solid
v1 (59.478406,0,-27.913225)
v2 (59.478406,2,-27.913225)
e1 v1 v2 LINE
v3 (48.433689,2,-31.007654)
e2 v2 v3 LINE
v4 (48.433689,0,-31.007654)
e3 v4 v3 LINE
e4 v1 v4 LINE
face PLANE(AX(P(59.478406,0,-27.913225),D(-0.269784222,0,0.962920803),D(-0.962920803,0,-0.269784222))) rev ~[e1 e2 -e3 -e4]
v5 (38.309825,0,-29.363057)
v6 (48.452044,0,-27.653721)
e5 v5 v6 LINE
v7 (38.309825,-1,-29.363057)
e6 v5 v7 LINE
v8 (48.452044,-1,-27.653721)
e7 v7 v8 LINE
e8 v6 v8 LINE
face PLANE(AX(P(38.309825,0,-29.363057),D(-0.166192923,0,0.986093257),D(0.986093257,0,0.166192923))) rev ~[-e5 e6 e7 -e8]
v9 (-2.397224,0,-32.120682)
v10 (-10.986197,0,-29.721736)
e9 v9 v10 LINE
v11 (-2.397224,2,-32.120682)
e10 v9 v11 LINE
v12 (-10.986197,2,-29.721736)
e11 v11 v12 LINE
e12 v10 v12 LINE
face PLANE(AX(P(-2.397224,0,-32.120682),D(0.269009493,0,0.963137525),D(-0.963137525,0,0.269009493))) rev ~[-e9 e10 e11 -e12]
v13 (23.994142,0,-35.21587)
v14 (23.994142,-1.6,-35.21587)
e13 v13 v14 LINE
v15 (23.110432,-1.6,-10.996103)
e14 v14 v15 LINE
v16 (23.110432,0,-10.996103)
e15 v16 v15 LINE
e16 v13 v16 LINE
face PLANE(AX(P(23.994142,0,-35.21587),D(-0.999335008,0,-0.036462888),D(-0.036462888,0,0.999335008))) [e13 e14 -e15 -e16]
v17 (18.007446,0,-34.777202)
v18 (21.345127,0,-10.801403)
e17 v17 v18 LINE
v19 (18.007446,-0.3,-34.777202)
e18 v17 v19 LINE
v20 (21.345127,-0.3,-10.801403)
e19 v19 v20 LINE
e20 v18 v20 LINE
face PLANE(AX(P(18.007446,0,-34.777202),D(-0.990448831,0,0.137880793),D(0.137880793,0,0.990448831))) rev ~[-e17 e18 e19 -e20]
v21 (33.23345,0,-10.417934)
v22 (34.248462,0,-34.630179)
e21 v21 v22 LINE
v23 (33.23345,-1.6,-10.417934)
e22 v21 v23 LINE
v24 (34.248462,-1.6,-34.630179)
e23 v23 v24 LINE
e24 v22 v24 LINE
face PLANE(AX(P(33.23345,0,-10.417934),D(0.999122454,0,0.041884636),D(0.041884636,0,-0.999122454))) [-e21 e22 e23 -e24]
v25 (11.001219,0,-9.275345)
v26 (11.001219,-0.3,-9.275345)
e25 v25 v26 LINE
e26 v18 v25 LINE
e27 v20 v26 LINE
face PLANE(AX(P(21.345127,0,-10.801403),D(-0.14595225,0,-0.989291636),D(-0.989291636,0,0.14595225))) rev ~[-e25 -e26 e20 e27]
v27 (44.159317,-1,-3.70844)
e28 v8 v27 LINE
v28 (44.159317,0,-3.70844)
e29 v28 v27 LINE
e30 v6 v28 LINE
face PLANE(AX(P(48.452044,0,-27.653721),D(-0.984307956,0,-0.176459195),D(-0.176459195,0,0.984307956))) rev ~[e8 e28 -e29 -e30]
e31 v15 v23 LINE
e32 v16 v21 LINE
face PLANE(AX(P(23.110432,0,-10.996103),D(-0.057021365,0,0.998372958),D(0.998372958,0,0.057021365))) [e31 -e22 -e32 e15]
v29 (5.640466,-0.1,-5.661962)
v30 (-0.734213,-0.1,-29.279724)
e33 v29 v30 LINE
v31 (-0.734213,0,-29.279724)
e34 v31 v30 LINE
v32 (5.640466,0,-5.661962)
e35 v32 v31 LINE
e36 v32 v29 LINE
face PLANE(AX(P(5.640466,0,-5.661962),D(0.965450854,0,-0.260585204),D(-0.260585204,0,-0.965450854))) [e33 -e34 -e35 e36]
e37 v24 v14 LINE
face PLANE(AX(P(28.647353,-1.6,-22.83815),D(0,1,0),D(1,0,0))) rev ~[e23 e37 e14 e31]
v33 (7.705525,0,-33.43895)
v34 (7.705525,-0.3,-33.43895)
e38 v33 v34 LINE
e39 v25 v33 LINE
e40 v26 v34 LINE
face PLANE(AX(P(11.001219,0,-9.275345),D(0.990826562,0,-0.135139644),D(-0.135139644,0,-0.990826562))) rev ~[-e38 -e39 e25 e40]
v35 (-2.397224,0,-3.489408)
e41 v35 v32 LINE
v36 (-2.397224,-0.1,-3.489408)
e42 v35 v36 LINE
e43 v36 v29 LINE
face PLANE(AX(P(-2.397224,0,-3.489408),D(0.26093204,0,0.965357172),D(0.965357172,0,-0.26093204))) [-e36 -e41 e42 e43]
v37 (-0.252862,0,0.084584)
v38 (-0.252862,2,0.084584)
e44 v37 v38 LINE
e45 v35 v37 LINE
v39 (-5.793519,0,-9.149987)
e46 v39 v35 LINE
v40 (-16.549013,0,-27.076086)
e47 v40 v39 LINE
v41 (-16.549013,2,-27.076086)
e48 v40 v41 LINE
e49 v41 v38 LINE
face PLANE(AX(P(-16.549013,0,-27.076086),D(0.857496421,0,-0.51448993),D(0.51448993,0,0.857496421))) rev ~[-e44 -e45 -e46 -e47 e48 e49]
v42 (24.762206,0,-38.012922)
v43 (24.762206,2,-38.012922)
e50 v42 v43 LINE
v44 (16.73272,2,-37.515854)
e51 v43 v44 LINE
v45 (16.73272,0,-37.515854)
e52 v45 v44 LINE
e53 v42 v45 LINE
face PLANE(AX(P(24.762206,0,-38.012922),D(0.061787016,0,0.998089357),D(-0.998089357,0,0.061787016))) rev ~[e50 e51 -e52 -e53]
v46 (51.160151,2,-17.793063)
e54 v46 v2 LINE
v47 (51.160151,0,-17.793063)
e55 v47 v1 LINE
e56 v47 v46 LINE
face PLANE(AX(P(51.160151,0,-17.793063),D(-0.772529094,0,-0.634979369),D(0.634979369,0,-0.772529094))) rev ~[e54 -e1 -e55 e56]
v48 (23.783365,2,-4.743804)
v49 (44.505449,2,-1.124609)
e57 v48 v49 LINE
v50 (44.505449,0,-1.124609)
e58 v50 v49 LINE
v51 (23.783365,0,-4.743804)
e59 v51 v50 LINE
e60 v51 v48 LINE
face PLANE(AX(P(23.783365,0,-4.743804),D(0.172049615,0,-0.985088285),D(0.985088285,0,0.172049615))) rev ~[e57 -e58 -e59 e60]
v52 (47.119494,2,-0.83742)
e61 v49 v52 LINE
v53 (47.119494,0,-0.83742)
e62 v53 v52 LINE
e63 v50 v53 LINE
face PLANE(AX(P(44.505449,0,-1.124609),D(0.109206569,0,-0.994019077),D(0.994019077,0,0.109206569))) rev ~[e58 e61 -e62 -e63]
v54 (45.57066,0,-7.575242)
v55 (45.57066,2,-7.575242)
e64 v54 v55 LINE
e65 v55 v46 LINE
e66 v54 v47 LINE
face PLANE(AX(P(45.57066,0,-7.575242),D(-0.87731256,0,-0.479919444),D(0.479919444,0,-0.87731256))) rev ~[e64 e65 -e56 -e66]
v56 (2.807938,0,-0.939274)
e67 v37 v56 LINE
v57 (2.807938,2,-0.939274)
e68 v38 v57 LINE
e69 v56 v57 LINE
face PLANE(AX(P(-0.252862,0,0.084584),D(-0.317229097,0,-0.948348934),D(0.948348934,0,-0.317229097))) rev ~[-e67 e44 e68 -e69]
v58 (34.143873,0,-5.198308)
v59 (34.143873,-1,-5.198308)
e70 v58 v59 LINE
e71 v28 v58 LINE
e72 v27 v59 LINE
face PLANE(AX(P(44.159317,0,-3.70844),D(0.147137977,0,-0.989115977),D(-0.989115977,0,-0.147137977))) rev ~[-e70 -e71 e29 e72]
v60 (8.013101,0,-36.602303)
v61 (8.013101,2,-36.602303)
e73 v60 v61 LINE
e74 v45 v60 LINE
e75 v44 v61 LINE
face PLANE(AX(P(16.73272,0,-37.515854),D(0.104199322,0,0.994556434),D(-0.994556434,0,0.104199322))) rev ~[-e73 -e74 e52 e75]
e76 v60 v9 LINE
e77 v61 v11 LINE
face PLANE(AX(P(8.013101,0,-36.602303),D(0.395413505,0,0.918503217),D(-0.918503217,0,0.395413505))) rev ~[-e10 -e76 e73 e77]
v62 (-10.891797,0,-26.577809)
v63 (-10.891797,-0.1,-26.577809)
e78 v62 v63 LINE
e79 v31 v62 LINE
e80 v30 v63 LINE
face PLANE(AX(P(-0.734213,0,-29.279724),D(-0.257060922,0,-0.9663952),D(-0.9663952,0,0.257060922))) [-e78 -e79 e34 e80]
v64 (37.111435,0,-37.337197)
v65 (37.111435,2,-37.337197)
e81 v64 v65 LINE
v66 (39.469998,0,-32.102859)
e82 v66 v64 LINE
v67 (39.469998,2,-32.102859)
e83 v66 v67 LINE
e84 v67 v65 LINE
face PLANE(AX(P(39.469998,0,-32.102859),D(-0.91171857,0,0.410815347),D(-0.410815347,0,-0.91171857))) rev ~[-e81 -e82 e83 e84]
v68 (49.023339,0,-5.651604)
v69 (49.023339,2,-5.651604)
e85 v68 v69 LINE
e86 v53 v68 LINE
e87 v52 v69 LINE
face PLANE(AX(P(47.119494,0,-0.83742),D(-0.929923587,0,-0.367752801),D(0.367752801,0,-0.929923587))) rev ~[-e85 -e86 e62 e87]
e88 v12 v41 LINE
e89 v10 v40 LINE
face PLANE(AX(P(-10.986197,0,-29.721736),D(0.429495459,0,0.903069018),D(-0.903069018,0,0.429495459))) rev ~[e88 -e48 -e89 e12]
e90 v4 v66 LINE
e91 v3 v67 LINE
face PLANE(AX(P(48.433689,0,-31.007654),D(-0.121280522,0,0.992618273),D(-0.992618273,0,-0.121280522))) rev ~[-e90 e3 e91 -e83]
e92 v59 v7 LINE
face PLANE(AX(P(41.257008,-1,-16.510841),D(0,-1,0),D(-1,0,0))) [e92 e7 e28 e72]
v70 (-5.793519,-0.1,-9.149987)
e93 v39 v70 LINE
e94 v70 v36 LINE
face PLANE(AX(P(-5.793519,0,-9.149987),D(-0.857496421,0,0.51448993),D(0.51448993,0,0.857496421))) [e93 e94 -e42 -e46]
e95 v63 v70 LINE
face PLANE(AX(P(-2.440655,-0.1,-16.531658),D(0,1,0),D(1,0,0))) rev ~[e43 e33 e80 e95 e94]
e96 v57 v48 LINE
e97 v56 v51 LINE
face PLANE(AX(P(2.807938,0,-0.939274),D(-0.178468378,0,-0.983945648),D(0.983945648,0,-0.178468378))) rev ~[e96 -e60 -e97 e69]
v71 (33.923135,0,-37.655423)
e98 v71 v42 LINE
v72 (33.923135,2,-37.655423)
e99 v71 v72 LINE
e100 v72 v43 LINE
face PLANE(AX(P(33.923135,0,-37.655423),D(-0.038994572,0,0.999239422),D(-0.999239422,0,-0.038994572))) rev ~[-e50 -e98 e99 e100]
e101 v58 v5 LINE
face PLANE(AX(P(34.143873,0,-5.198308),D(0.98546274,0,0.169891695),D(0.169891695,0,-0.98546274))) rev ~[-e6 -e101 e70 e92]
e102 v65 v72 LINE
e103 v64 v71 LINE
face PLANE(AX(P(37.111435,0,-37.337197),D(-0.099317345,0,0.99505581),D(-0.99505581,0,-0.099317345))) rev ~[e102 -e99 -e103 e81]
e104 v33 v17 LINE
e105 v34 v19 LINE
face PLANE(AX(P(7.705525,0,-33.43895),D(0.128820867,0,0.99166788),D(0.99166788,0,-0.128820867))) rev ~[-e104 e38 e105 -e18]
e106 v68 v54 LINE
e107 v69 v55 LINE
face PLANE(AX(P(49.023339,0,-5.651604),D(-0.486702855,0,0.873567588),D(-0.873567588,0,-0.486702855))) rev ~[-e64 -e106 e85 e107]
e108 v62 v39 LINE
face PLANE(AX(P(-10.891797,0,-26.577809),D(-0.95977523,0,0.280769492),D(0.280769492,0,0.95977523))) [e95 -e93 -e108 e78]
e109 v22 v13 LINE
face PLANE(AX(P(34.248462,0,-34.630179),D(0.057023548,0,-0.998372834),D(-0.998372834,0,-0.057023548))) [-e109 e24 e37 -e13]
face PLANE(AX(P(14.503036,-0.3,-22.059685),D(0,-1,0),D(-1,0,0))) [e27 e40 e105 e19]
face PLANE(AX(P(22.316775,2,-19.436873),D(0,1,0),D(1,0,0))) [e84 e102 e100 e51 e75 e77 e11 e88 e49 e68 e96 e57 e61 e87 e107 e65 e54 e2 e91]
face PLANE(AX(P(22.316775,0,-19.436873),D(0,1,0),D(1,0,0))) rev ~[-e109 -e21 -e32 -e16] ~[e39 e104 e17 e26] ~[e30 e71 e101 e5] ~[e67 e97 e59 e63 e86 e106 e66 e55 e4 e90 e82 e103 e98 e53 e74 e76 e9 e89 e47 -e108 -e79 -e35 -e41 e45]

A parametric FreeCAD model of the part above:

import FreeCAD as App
import Part
import Sketcher


def add_polygon(sketch, points):
    """Adds a closed chain of lines whose ends are joined by coincident constraints."""
    first, n = sketch.GeometryCount, len(points)
    for a, b in zip(points, points[1:] + points[:1]):
        sketch.addGeometry(Part.LineSegment(App.Vector(*a, 0), App.Vector(*b, 0)), False)
    for i in range(n):
        sketch.addConstraint(Sketcher.Constraint("Coincident", first + i, 2, first + (i + 1) % n, 1))

doc = App.newDocument("Part")
body = doc.addObject("PartDesign::Body", "Body")

# Sketch on XZ plane
sketch1 = doc.addObject("Sketcher::SketchObject", "Sketch")
body.addObject(sketch1)
sketch1.AttachmentSupport = (doc.XZ_Plane, [""])
sketch1.MapMode = "FlatFace"
add_polygon(sketch1, [(-11, -27), (-6, -9), (-2, -3), (6, -6), (-1, -29)])  # lines 0-4
sketch1.addConstraint(Sketcher.Constraint("DistanceY", 4, 2, 1, 2, 23.088401))
sketch1.addConstraint(Sketcher.Constraint("Distance", 2, 8.326131))
sketch1.addConstraint(Sketcher.Constraint("DistanceX", 0, 2, -1, 1, 5.793519))
sketch1.addConstraint(Sketcher.Constraint("DistanceY", 4, 2, -1, 1, 26.577809))
sketch1.addConstraint(Sketcher.Constraint("DistanceY", 0, 2, 1, 2, 5.660579))
sketch1.addConstraint(Sketcher.Constraint("DistanceX", 1, 2, 2, 2, 8.037691))
sketch1.addConstraint(Sketcher.Constraint("DistanceX", 3, 2, 2, 2, 6.374679))
sketch1.addConstraint(Sketcher.Constraint("DistanceY", 3, 2, 2, 2, 23.617762))
sketch1.addConstraint(Sketcher.Constraint("Distance", 0, 18.158233))
sketch1.addConstraint(Sketcher.Constraint("Distance", 1, 6.601286))
pad1 = doc.addObject("PartDesign::Pad", "Pad")
body.addObject(pad1)
pad1.Profile = sketch1
pad1.Length = 0.1
body2 = doc.addObject("PartDesign::Body", "Body001")

# Sketch on XZ plane
sketch2 = doc.addObject("Sketcher::SketchObject", "Sketch001")
body2.addObject(sketch2)
sketch2.AttachmentSupport = (doc.getObject("XZ_Plane001"), [""])
sketch2.MapMode = "FlatFace"
add_polygon(sketch2, [(8, -33), (11, -9), (21, -11), (18, -35)])  # lines 0-3
sketch2.addConstraint(Sketcher.Constraint("DistanceY", 2, 2, 1, 2, 23.9758))
sketch2.addConstraint(Sketcher.Constraint("Distance", 0, 24.387321))
sketch2.addConstraint(Sketcher.Constraint("Distance", 3, 10.388479))
sketch2.addConstraint(Sketcher.Constraint("DistanceX", -1, 1, 0, 2, 11.001219))
sketch2.addConstraint(Sketcher.Constraint("DistanceY", 3, 2, -1, 1, 33.43895))
sketch2.addConstraint(Sketcher.Constraint("DistanceX", 0, 2, 1, 2, 10.343908))
sketch2.addConstraint(Sketcher.Constraint("DistanceY", 1, 2, 0, 2, 1.526058))
sketch2.addConstraint(Sketcher.Constraint("DistanceX", 2, 2, 1, 2, 3.337681))
pad2 = doc.addObject("PartDesign::Pad", "Pad001")
body2.addObject(pad2)
pad2.Profile = sketch2
pad2.Length = 0.3
body3 = doc.addObject("PartDesign::Body", "Body002")

# Sketch on XZ plane
sketch3 = doc.addObject("Sketcher::SketchObject", "Sketch002")
body3.addObject(sketch3)
sketch3.AttachmentSupport = (doc.getObject("XZ_Plane002"), [""])
sketch3.MapMode = "FlatFace"
add_polygon(sketch3, [(33, -10), (34, -35), (24, -35), (23, -11)])  # lines 0-3
sketch3.addConstraint(Sketcher.Constraint("Distance", 0, 24.233511))
sketch3.addConstraint(Sketcher.Constraint("DistanceY", 0, 2, -1, 1, 34.630179))
sketch3.addConstraint(Sketcher.Constraint("DistanceY", 1, 2, -1, 1, 35.21587))
sketch3.addConstraint(Sketcher.Constraint("DistanceX", -1, 1, 3, 2, 33.23345))
sketch3.addConstraint(Sketcher.Constraint("DistanceX", 1, 2, 0, 2, 10.25432))
sketch3.addConstraint(Sketcher.Constraint("DistanceX", 2, 2, 1, 2, 0.88371))
sketch3.addConstraint(Sketcher.Constraint("DistanceX", 2, 2, 3, 2, 10.123018))
sketch3.addConstraint(Sketcher.Constraint("DistanceY", 2, 2, 3, 2, 0.578169))
pad3 = doc.addObject("PartDesign::Pad", "Pad002")
body3.addObject(pad3)
pad3.Profile = sketch3
pad3.Length = 1.6
body4 = doc.addObject("PartDesign::Body", "Body003")

# Sketch on XZ plane
sketch4 = doc.addObject("Sketcher::SketchObject", "Sketch003")
body4.addObject(sketch4)
sketch4.AttachmentSupport = (doc.getObject("XZ_Plane003"), [""])
sketch4.MapMode = "FlatFace"
add_polygon(sketch4, [(38, -29), (34, -5), (44, -4), (48, -28)])  # lines 0-3
sketch4.addConstraint(Sketcher.Constraint("Distance", 0, 24.521221))
sketch4.addConstraint(Sketcher.Constraint("Distance", 1, 10.125651))
sketch4.addConstraint(Sketcher.Constraint("Distance", 2, 24.327021))
sketch4.addConstraint(Sketcher.Constraint("DistanceY", 0, 2, -1, 1, 5.198308))
sketch4.addConstraint(Sketcher.Constraint("DistanceY", 1, 2, -1, 1, 3.70844))
sketch4.addConstraint(Sketcher.Constraint("DistanceY", 2, 2, -1, 1, 27.653721))
sketch4.addConstraint(Sketcher.Constraint("DistanceX", 3, 2, 2, 2, 10.142219))
sketch4.addConstraint(Sketcher.Constraint("DistanceX", -1, 1, 0, 2, 34.143873))
pad4 = doc.addObject("PartDesign::Pad", "Pad003")
body4.addObject(pad4)
pad4.Profile = sketch4
pad4.Length = 1
body.AllowCompound = True
doc.recompute()

boolean = doc.addObject("PartDesign::Boolean", "Boolean")
body.addObject(boolean)
boolean.Type = "Fuse"
boolean.addObjects([body2])
doc.recompute()

boolean2 = doc.addObject("PartDesign::Boolean", "Boolean001")
body.addObject(boolean2)
boolean2.Type = "Fuse"
boolean2.addObjects([body3])
doc.recompute()

boolean3 = doc.addObject("PartDesign::Boolean", "Boolean002")
body.addObject(boolean3)
boolean3.Type = "Fuse"
boolean3.addObjects([body4])

# Sketch on XZ plane
sketch5 = doc.addObject("Sketcher::SketchObject", "Sketch004")
body.addObject(sketch5)
sketch5.AttachmentSupport = (doc.XZ_Plane, [""])
sketch5.MapMode = "FlatFace"
add_polygon(sketch5, [(-11, -29.7), (-16.5, -27.1), (-0.3, 0.1), (2.8, -0.9), (23.8, -4.7), (44.5, -1.1), (47.1, -0.8), (49, -5.7), (45.6, -7.6), (51.2, -17.8), (59.5, -27.9), (48.4, -31), (39.5, -32.1), (37.1, -37.3), (33.9, -37.7), (24.8, -38), (16.7, -37.5), (8, -36.6), (-2.4, -32.1)])  # lines 0-18
sketch5.addConstraint(Sketcher.Constraint("DistanceX", -1, 1, 11, 2, 39.469998))
sketch5.addConstraint(Sketcher.Constraint("Distance", 0, 6.159901))
sketch5.addConstraint(Sketcher.Constraint("Distance", 14, 9.167902))
sketch5.addConstraint(Sketcher.Constraint("Distance", 18, 8.917701))
sketch5.addConstraint(Sketcher.Constraint("DistanceX", -1, 1, 16, 2, 8.013101))
sketch5.addConstraint(Sketcher.Constraint("DistanceX", 1, 2, 2, 2, 3.0608))
sketch5.addConstraint(Sketcher.Constraint("DistanceY", 6, 2, 3, 2, 0.9078))
sketch5.addConstraint(Sketcher.Constraint("DistanceX", 2, 2, 6, 2, 46.2154))
sketch5.addConstraint(Sketcher.Constraint("DistanceX", 13, 2, 12, 2, 3.1883))
sketch5.addConstraint(Sketcher.Constraint("DistanceY", 13, 2, 9, 2, 9.742199))
sketch5.addConstraint(Sketcher.Constraint("DistanceY", 14, 2, 13, 2, 0.357498))
sketch5.addConstraint(Sketcher.Constraint("DistanceY", 15, 2, 10, 2, 6.5082))
sketch5.addConstraint(Sketcher.Constraint("Distance", 3, 21.317668))
sketch5.addConstraint(Sketcher.Constraint("Distance", 7, 3.952388))
sketch5.addConstraint(Sketcher.Constraint("Distance", 9, 13.100039))
sketch5.addConstraint(Sketcher.Constraint("Distance", 11, 9.030351))
sketch5.addConstraint(Sketcher.Constraint("Distance", 17, 11.33401))
sketch5.addConstraint(Sketcher.Constraint("DistanceX", -1, 1, 2, 2, 2.807938))
sketch5.addConstraint(Sketcher.Constraint("DistanceX", -1, 1, 4, 2, 44.505449))
sketch5.addConstraint(Sketcher.Constraint("DistanceY", 4, 2, -1, 1, 1.124609))
sketch5.addConstraint(Sketcher.Constraint("DistanceY", 5, 2, -1, 1, 0.83742))
sketch5.addConstraint(Sketcher.Constraint("DistanceX", -1, 1, 7, 2, 45.57066))
sketch5.addConstraint(Sketcher.Constraint("DistanceX", -1, 1, 8, 2, 51.160151))
sketch5.addConstraint(Sketcher.Constraint("DistanceX", -1, 1, 10, 2, 48.433689))
sketch5.addConstraint(Sketcher.Constraint("DistanceY", 11, 2, -1, 1, 32.102859))
sketch5.addConstraint(Sketcher.Constraint("DistanceY", 14, 2, -1, 1, 38.012922))
sketch5.addConstraint(Sketcher.Constraint("DistanceX", -1, 1, 15, 2, 16.73272))
sketch5.addConstraint(Sketcher.Constraint("DistanceY", 17, 2, -1, 1, 32.120682))
sketch5.addConstraint(Sketcher.Constraint("DistanceX", 0, 2, 1, 2, 16.296151))
sketch5.addConstraint(Sketcher.Constraint("DistanceY", 0, 2, 1, 2, 27.16067))
sketch5.addConstraint(Sketcher.Constraint("DistanceY", 2, 2, 1, 2, 1.023858))
sketch5.addConstraint(Sketcher.Constraint("DistanceY", 3, 2, 2, 2, 3.80453))
sketch5.addConstraint(Sketcher.Constraint("DistanceX", 3, 2, 5, 2, 23.33613))
sketch5.addConstraint(Sketcher.Constraint("DistanceY", 8, 2, 7, 2, 10.217821))
sketch5.addConstraint(Sketcher.Constraint("DistanceY", 9, 2, 8, 2, 10.120161))
sketch5.addConstraint(Sketcher.Constraint("DistanceX", 12, 2, 9, 2, 22.366971))
sketch5.addConstraint(Sketcher.Constraint("DistanceY", 15, 2, 16, 2, 0.913551))
sketch5.addConstraint(Sketcher.Constraint("Distance", 12, 5.741176))
pad5 = doc.addObject("PartDesign::Pad", "Pad004")
body.addObject(pad5)
pad5.Profile = sketch5
pad5.Length = 2
pad5.Reversed = True

doc.recompute()
